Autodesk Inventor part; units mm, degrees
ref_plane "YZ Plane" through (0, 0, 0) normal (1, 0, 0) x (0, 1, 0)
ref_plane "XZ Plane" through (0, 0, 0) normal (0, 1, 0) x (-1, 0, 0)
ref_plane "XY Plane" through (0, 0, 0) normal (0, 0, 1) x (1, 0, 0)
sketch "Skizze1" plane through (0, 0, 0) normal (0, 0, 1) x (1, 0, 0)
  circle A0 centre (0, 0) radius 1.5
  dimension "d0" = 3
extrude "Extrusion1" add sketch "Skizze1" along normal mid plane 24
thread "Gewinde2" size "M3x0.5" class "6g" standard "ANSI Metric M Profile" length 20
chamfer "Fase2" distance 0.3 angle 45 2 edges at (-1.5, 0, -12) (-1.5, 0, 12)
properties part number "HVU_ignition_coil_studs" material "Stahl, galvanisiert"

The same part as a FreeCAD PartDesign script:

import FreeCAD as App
import Part
import Sketcher

V = App.Vector


def edges_at(feature, points):
    """Names of the edges that pass closest to the given points."""
    edges = feature.Shape.Edges
    near = lambda p: min(range(len(edges)), key=lambda i: edges[i].distToShape(Part.Vertex(*p))[0])
    return sorted({f"Edge{near(p) + 1}" for p in points})

doc = App.newDocument("Part")
body = doc.addObject("PartDesign::Body", "Body")

sketch1 = body.newObject("Sketcher::SketchObject", "Sketch")
sketch1.AttachmentSupport = (doc.getObject("XY_Plane"), [""])
sketch1.MapMode = "FlatFace"
sketch1.addGeometry(Part.Circle(V(0, 0, 0), V(0, 0, 1), 1.5), False)
sketch1.addConstraint(Sketcher.Constraint("Coincident", 0, 3, -1, 1))
sketch1.addConstraint(Sketcher.Constraint("Diameter", 0, 3.0))
pad1 = body.newObject("PartDesign::Pad", "Pad")
pad1.Profile = sketch1
pad1.Length = 24
pad1.Midplane = True
doc.recompute()

chamfer = body.newObject("PartDesign::Chamfer", "Chamfer")
chamfer.Base = (pad1, edges_at(pad1, [(-1.5, 0, -12), (-1.5, 0, 12)]))
chamfer.Size = 0.3

doc.recompute()
